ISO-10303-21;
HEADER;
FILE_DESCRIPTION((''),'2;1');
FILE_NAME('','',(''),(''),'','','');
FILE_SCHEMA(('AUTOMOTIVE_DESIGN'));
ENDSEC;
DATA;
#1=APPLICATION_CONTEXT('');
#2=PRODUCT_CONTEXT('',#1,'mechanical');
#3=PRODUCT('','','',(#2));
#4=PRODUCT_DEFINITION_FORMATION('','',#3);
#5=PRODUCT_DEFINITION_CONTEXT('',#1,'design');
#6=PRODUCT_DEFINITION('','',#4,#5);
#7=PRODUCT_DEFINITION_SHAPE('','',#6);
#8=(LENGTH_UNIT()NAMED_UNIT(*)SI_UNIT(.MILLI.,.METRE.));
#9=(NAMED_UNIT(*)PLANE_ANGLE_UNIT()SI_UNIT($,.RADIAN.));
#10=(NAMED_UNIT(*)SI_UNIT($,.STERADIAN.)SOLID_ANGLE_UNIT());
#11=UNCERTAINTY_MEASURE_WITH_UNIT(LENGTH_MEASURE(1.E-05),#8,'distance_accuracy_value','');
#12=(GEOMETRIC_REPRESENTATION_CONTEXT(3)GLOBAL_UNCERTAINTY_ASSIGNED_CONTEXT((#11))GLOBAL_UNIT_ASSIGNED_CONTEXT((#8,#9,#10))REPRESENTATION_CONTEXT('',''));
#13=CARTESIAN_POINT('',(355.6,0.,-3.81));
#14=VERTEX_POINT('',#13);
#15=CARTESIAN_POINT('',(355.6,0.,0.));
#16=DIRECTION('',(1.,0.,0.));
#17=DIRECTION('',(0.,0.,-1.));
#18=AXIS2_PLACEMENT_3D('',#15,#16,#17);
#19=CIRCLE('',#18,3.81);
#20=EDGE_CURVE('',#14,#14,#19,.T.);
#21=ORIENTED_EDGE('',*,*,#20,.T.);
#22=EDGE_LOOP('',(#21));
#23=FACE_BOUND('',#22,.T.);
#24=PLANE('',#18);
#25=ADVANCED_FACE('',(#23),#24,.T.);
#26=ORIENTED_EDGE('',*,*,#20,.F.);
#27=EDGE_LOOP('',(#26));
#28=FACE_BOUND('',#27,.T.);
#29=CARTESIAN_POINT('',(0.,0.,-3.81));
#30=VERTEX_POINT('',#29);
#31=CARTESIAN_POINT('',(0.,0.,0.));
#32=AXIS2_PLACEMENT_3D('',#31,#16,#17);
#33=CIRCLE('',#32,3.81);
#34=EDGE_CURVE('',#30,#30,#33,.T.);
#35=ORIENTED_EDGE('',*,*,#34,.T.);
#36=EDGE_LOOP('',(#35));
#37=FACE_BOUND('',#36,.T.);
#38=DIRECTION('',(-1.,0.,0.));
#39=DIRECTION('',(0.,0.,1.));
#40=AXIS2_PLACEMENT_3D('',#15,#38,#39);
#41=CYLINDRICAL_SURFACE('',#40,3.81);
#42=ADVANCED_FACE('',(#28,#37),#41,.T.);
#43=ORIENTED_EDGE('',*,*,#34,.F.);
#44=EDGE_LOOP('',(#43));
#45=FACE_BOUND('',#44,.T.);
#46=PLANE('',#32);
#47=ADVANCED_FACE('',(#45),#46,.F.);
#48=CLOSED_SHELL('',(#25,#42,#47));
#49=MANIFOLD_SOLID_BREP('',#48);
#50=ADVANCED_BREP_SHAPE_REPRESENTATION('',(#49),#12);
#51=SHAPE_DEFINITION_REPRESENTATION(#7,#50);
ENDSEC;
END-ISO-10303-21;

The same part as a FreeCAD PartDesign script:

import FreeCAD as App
import Part
import Sketcher
Q = App.Units.Quantity

doc = App.newDocument("Part")
params = doc.addObject("Spreadsheet::Sheet", "Params")
for row, (alias, value) in enumerate([
    ("sketch1_diameter", "0.3 in"),
    ("pad1_length", "14 in"),
], start=1):
    params.set(f"A{row}", alias)
    params.set(f"B{row}", "=" + value)
    params.setAlias(f"B{row}", alias)

body = doc.addObject("PartDesign::Body", "Body")

# Sketch on YZ plane
sketch1 = body.newObject("Sketcher::SketchObject", "Sketch")
sketch1.AttachmentSupport = (doc.getObject("YZ_Plane"), [""])
sketch1.MapMode = "FlatFace"
sketch1.addGeometry(Part.Circle(App.Vector(0, 0, 0), App.Vector(0, 0, 1), 3.8), False)
sketch1.addConstraint([
    Sketcher.Constraint("Coincident", 0, 3, -1, 1),
    Sketcher.Constraint("Diameter", 0, Q("0.3 in")),
])
sketch1.setExpression("Constraints[1]", "Params.sketch1_diameter")
pad1 = body.newObject("PartDesign::Pad", "Pad")
pad1.Profile = sketch1
pad1.setExpression("Length", "Params.pad1_length")

doc.recompute()
